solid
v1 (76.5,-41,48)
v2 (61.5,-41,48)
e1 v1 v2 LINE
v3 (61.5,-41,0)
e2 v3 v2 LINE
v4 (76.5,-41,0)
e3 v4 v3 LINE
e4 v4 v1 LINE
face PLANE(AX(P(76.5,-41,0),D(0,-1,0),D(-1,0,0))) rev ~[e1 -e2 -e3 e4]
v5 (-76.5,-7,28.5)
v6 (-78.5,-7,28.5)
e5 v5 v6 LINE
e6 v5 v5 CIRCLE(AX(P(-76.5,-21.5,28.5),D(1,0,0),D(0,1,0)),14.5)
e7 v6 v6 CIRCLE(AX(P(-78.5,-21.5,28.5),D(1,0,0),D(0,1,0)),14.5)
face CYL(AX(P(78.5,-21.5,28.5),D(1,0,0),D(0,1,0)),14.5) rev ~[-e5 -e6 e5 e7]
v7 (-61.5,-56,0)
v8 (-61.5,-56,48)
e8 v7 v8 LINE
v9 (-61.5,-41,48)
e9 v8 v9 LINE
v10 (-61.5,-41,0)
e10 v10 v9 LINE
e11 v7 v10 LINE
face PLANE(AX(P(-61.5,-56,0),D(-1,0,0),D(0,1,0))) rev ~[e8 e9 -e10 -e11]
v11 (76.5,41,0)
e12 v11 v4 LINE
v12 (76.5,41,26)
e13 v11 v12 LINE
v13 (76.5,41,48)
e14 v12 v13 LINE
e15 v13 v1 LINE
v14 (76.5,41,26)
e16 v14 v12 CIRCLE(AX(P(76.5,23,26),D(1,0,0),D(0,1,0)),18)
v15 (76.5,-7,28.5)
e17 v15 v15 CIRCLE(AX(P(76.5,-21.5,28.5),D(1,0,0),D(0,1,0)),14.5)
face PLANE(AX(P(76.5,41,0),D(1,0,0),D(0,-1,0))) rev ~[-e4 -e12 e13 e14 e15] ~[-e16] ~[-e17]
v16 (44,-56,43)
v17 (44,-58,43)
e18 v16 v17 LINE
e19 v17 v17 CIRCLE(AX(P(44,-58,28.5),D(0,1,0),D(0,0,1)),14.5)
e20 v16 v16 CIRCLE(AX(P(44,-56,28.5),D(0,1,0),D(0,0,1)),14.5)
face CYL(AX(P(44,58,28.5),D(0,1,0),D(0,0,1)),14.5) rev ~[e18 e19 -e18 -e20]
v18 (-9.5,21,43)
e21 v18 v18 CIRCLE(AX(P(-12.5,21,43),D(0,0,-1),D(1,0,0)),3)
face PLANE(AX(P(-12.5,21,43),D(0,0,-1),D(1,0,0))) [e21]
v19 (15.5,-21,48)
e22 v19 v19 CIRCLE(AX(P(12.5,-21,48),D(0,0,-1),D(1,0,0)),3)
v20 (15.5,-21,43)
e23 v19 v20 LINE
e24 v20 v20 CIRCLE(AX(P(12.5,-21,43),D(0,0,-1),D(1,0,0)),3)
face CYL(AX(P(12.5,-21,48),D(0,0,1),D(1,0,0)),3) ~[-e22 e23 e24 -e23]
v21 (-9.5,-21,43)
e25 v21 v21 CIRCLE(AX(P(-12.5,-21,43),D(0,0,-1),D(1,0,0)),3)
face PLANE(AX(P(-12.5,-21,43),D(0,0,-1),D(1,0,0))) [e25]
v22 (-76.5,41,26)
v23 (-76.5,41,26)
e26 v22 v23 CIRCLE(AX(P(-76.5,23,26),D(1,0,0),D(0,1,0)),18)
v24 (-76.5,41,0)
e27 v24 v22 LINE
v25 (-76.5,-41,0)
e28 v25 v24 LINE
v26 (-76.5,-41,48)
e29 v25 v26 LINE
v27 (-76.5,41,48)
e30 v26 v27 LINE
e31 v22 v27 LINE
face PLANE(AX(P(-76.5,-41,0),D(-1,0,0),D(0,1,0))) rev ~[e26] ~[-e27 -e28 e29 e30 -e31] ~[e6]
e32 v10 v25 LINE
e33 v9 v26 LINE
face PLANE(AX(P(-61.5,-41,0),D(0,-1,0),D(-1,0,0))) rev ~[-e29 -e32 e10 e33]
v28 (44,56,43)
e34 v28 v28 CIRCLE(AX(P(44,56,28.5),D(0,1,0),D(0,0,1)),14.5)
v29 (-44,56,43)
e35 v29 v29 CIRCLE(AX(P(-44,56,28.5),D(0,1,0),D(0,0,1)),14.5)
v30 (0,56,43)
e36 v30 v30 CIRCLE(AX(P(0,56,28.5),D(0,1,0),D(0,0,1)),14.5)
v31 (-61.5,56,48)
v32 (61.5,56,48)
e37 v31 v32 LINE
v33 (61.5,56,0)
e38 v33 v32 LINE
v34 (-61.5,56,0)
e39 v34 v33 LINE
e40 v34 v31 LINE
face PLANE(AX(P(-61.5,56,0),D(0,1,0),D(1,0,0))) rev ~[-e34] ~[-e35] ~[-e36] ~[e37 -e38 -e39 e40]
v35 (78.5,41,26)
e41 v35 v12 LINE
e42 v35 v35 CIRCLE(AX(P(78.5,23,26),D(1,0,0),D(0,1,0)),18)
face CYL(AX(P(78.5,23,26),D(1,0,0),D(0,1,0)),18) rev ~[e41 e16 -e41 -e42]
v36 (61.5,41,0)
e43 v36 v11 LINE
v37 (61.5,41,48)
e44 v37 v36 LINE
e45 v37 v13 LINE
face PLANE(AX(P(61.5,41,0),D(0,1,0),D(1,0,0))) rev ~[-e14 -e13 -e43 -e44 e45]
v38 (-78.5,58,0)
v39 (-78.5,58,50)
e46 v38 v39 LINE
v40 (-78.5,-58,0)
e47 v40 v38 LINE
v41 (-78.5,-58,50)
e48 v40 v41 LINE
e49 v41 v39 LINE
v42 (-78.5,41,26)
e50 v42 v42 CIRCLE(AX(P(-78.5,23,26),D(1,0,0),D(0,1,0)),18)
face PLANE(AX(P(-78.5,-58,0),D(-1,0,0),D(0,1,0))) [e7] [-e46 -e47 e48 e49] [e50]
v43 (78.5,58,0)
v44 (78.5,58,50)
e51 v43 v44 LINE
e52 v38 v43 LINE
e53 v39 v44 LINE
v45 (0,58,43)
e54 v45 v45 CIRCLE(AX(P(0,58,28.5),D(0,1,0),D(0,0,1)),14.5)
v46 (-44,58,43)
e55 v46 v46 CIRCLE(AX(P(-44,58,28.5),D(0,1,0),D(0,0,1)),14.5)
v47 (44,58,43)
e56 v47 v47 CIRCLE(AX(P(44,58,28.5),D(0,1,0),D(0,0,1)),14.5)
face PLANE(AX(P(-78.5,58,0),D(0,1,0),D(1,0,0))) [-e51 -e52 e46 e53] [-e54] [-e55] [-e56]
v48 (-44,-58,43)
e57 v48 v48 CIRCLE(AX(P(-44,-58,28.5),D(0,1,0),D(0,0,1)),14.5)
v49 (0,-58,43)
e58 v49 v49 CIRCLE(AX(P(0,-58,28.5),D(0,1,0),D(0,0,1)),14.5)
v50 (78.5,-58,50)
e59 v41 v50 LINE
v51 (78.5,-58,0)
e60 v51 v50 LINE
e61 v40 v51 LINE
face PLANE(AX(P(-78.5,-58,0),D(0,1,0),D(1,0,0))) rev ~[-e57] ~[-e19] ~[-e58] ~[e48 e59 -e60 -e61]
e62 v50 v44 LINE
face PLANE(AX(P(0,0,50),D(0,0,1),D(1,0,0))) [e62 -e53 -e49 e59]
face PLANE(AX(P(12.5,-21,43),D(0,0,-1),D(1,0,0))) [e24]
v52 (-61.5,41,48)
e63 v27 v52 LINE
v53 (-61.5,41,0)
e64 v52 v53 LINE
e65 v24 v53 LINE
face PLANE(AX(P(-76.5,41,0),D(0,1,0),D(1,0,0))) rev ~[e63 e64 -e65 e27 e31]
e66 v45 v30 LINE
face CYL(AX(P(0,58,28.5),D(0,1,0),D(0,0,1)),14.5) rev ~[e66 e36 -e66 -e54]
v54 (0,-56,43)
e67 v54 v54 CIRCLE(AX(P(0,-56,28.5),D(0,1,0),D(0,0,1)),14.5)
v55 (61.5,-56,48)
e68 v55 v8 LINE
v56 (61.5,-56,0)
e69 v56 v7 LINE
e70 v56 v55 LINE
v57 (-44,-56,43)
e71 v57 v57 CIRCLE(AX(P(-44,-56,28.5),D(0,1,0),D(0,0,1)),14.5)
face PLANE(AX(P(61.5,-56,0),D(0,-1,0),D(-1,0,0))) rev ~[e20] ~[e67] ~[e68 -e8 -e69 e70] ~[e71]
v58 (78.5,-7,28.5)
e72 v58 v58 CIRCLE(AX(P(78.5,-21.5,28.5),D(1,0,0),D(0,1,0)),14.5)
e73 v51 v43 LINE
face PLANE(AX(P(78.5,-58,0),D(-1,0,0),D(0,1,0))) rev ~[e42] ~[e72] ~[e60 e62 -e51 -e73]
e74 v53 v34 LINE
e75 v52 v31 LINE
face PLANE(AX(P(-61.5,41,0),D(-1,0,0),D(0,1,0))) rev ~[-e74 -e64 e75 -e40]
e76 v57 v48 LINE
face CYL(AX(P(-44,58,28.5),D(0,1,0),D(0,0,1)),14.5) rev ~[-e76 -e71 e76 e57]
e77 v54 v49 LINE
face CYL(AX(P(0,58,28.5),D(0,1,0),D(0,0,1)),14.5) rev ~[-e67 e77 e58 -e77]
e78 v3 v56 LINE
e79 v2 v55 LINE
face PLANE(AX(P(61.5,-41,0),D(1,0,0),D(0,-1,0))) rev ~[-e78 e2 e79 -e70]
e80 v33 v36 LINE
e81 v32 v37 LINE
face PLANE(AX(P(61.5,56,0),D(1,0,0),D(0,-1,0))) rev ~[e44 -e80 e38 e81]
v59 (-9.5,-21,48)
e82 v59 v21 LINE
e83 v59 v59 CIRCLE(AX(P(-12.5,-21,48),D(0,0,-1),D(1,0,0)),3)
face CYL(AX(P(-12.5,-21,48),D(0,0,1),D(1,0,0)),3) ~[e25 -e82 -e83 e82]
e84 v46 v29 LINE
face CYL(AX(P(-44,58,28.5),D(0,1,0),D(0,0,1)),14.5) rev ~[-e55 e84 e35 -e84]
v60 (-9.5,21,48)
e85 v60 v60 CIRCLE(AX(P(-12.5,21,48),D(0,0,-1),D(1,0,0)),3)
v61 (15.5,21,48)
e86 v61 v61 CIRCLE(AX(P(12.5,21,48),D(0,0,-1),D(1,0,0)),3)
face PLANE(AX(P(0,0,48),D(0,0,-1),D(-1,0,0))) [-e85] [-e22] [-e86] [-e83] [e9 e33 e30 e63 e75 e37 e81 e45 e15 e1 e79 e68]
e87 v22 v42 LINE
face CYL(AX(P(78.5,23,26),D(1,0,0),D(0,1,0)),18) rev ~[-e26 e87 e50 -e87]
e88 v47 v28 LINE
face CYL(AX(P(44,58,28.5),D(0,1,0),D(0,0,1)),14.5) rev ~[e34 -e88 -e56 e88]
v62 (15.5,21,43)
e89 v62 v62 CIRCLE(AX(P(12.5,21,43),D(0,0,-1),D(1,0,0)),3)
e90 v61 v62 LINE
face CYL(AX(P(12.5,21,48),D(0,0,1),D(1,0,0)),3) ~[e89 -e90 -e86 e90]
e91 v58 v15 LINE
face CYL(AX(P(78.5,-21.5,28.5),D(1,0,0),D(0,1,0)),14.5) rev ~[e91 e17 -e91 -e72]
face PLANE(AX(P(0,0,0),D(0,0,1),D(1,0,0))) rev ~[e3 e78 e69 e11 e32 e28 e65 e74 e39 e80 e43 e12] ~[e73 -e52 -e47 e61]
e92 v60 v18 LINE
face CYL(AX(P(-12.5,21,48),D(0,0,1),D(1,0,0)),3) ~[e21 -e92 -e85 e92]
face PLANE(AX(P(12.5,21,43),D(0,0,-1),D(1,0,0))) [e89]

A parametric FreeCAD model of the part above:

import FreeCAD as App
import Part
import Sketcher
Q = App.Units.Quantity

doc = App.newDocument("Part")
body = doc.addObject("PartDesign::Body", "Body")

# Sketch on XY plane
sketch1 = doc.addObject("Sketcher::SketchObject", "Sketch")
body.addObject(sketch1)
sketch1.AttachmentSupport = (doc.XY_Plane, [""])
sketch1.MapMode = "FlatFace"
sketch1.addGeometry([
    Part.LineSegment(App.Vector(-78, 58, 0), App.Vector(-78, -58, 0)),
    Part.LineSegment(App.Vector(-78, -58, 0), App.Vector(78, -58, 0)),
    Part.LineSegment(App.Vector(78, -58, 0), App.Vector(78, 58, 0)),
    Part.LineSegment(App.Vector(78, 58, 0), App.Vector(-78, 58, 0)),
], False)
sketch1.addConstraint([
    Sketcher.Constraint("Coincident", 0, 2, 1, 1),
    Sketcher.Constraint("Coincident", 1, 2, 2, 1),
    Sketcher.Constraint("Coincident", 2, 2, 3, 1),
    Sketcher.Constraint("Coincident", 3, 2, 0, 1),
    Sketcher.Constraint("Vertical", 0),
    Sketcher.Constraint("Horizontal", 1),
    Sketcher.Constraint("Vertical", 2),
    Sketcher.Constraint("Horizontal", 3),
    Sketcher.Constraint("Symmetric", 0, 2, 2, 2, -1, 1),
    Sketcher.Constraint("DistanceX", 1, 1, 1, 2, Q("157 mm")),
    Sketcher.Constraint("DistanceY", 0, 2, 0, 1, Q("116 mm")),
])
pad1 = doc.addObject("PartDesign::Pad", "Pad")
body.addObject(pad1)
pad1.Profile = sketch1
pad1.Length = 50

# Sketch on XY plane
sketch2 = doc.addObject("Sketcher::SketchObject", "Sketch001")
body.addObject(sketch2)
sketch2.AttachmentSupport = (doc.XY_Plane, [""])
sketch2.MapMode = "FlatFace"
sketch2.addGeometry([
    Part.LineSegment(App.Vector(62, 56, 0), App.Vector(-62, 56, 0)),  # 0
    Part.LineSegment(App.Vector(-62, 56, 0), App.Vector(-62, 41, 0)),  # 1
    Part.LineSegment(App.Vector(-62, 41, 0), App.Vector(-76, 41, 0)),  # 2
    Part.LineSegment(App.Vector(-76, 41, 0), App.Vector(-76, -41, 0)),  # 3
    Part.LineSegment(App.Vector(-76, -41, 0), App.Vector(-62, -41, 0)),  # 4
    Part.LineSegment(App.Vector(-62, -41, 0), App.Vector(-62, -56, 0)),  # 5
    Part.LineSegment(App.Vector(-62, -56, 0), App.Vector(62, -56, 0)),  # 6
    Part.LineSegment(App.Vector(62, -56, 0), App.Vector(62, -41, 0)),  # 7
    Part.LineSegment(App.Vector(62, -41, 0), App.Vector(76, -41, 0)),  # 8
    Part.LineSegment(App.Vector(76, -41, 0), App.Vector(76, 41, 0)),  # 9
    Part.LineSegment(App.Vector(76, 41, 0), App.Vector(62, 41, 0)),  # 10
    Part.LineSegment(App.Vector(62, 41, 0), App.Vector(62, 56, 0)),  # 11
], False)
sketch2.addConstraint([
    Sketcher.Constraint("Coincident", 0, 2, 1, 1),
    Sketcher.Constraint("Coincident", 1, 2, 2, 1),
    Sketcher.Constraint("Coincident", 2, 2, 3, 1),
    Sketcher.Constraint("Coincident", 3, 2, 4, 1),
    Sketcher.Constraint("Coincident", 4, 2, 5, 1),
    Sketcher.Constraint("Coincident", 5, 2, 6, 1),
    Sketcher.Constraint("Coincident", 6, 2, 7, 1),
    Sketcher.Constraint("Coincident", 7, 2, 8, 1),
    Sketcher.Constraint("Coincident", 8, 2, 9, 1),
    Sketcher.Constraint("Coincident", 9, 2, 10, 1),
    Sketcher.Constraint("Coincident", 10, 2, 11, 1),
    Sketcher.Constraint("Coincident", 11, 2, 0, 1),
    Sketcher.Constraint("Horizontal", 0),
    Sketcher.Constraint("Vertical", 1),
    Sketcher.Constraint("Horizontal", 2),
    Sketcher.Constraint("Vertical", 3),
    Sketcher.Constraint("Horizontal", 4),
    Sketcher.Constraint("Vertical", 5),
    Sketcher.Constraint("Horizontal", 6),
    Sketcher.Constraint("Vertical", 7),
    Sketcher.Constraint("Horizontal", 8),
    Sketcher.Constraint("Vertical", 9),
    Sketcher.Constraint("Horizontal", 10),
    Sketcher.Constraint("Vertical", 11),
    Sketcher.Constraint("Symmetric", 0, 2, 6, 2, -1, 1),
    Sketcher.Constraint("Symmetric", 2, 2, 8, 2, -1, 1),
    Sketcher.Constraint("Symmetric", 4, 2, 10, 2, -1, 1),
    Sketcher.Constraint("Symmetric", 4, 2, 7, 2, -2),
    Sketcher.Constraint("Equal", 10, 1),
    Sketcher.Constraint("DistanceX", 0, 2, 0, 1, Q("123 mm")),
    Sketcher.Constraint("DistanceX", 2, 2, 2, 1, Q("15 mm")),
    Sketcher.Constraint("DistanceY", 3, 2, 3, 1, Q("82 mm")),
])
pocket1 = doc.addObject("PartDesign::Pocket", "Pocket")
body.addObject(pocket1)
pocket1.Profile = sketch2
pocket1.Length = 48
pocket1.Reversed = True

# Sketch on YZ plane
sketch3 = doc.addObject("Sketcher::SketchObject", "Sketch002")
body.addObject(sketch3)
sketch3.AttachmentSupport = (doc.YZ_Plane, [""])
sketch3.MapMode = "FlatFace"
sketch3.AttachmentOffset = App.Placement(App.Vector(0, 0, 78.5), App.Rotation())
sketch3.addGeometry([
    Part.Circle(App.Vector(23, 26, 0), App.Vector(0, 0, 1), 18),
    Part.Circle(App.Vector(-22, 28, 0), App.Vector(0, 0, 1), 14),
], False)
sketch3.addConstraint([
    Sketcher.Constraint("Diameter", 0, Q("36 mm")),
    Sketcher.Constraint("Diameter", 1, Q("29 mm")),
    Sketcher.Constraint("DistanceX", -1, 1, 0, 3, Q("23 mm")),
    Sketcher.Constraint("DistanceY", -1, 1, 0, 3, Q("26 mm")),
    Sketcher.Constraint("DistanceX", 1, 3, -1, 1, Q("21.5 mm")),
    Sketcher.Constraint("DistanceY", -1, 1, 1, 3, Q("28.5 mm")),
])
pocket2 = doc.addObject("PartDesign::Pocket", "Pocket001")
body.addObject(pocket2)
pocket2.Profile = sketch3
pocket2.Type = "ThroughAll"

# Sketch on XZ plane
sketch4 = doc.addObject("Sketcher::SketchObject", "Sketch003")
body.addObject(sketch4)
sketch4.AttachmentSupport = (doc.XZ_Plane, [""])
sketch4.MapMode = "FlatFace"
sketch4.AttachmentOffset = App.Placement(App.Vector(0, 0, -58), App.Rotation())
sketch4.addGeometry([
    Part.Circle(App.Vector(-44, 28, 0), App.Vector(0, 0, 1), 14),
    Part.Circle(App.Vector(0, 28, 0), App.Vector(0, 0, 1), 14),
    Part.Circle(App.Vector(44, 28, 0), App.Vector(0, 0, 1), 14),
], False)
sketch4.addConstraint([
    Sketcher.Constraint("Equal", 0, 1),
    Sketcher.Constraint("Equal", 1, 2),
    Sketcher.Constraint("Symmetric", 0, 3, 2, 3, -2),
    Sketcher.Constraint("PointOnObject", 1, 3, -2),
    Sketcher.Constraint("Horizontal", 0, 3, 1, 3),
    Sketcher.Constraint("Diameter", 0, Q("29 mm")),
    Sketcher.Constraint("DistanceX", 0, 3, -1, 1, Q("44 mm")),
    Sketcher.Constraint("DistanceY", -1, 1, 0, 3, Q("28.5 mm")),
])
pocket3 = doc.addObject("PartDesign::Pocket", "Pocket002")
body.addObject(pocket3)
pocket3.Profile = sketch4
pocket3.Type = "ThroughAll"
pocket3.Reversed = True

# Sketch on XY plane
sketch5 = doc.addObject("Sketcher::SketchObject", "Sketch004")
body.addObject(sketch5)
sketch5.AttachmentSupport = (doc.XY_Plane, [""])
sketch5.MapMode = "FlatFace"
sketch5.AttachmentOffset = App.Placement(App.Vector(0, 0, 48), App.Rotation())
sketch5.addGeometry([
    Part.Circle(App.Vector(12.5, -21, 0), App.Vector(0, 0, 1), 3),
    Part.Circle(App.Vector(-12.5, -21, 0), App.Vector(0, 0, 1), 3),
    Part.Circle(App.Vector(-12.5, 21, 0), App.Vector(0, 0, 1), 3),
    Part.Circle(App.Vector(12.5, 21, 0), App.Vector(0, 0, 1), 3),
], False)
sketch5.addConstraint([
    Sketcher.Constraint("Equal", 0, 1),
    Sketcher.Constraint("Equal", 1, 2),
    Sketcher.Constraint("Equal", 2, 3),
    Sketcher.Constraint("Symmetric", 0, 3, 2, 3, -1, 1),
    Sketcher.Constraint("Symmetric", 1, 3, 3, 3, -1, 1),
    Sketcher.Constraint("Symmetric", 0, 3, 1, 3, -2),
    Sketcher.Constraint("Diameter", 0, Q("6 mm")),
    Sketcher.Constraint("DistanceY", 0, 3, -1, 1, Q("21 mm")),
    Sketcher.Constraint("DistanceX", 1, 3, 0, 3, Q("25 mm")),
])
pad2 = doc.addObject("PartDesign::Pad", "Pad001")
body.addObject(pad2)
pad2.Profile = sketch5
pad2.Length = 5
pad2.Reversed = True

doc.recompute()
